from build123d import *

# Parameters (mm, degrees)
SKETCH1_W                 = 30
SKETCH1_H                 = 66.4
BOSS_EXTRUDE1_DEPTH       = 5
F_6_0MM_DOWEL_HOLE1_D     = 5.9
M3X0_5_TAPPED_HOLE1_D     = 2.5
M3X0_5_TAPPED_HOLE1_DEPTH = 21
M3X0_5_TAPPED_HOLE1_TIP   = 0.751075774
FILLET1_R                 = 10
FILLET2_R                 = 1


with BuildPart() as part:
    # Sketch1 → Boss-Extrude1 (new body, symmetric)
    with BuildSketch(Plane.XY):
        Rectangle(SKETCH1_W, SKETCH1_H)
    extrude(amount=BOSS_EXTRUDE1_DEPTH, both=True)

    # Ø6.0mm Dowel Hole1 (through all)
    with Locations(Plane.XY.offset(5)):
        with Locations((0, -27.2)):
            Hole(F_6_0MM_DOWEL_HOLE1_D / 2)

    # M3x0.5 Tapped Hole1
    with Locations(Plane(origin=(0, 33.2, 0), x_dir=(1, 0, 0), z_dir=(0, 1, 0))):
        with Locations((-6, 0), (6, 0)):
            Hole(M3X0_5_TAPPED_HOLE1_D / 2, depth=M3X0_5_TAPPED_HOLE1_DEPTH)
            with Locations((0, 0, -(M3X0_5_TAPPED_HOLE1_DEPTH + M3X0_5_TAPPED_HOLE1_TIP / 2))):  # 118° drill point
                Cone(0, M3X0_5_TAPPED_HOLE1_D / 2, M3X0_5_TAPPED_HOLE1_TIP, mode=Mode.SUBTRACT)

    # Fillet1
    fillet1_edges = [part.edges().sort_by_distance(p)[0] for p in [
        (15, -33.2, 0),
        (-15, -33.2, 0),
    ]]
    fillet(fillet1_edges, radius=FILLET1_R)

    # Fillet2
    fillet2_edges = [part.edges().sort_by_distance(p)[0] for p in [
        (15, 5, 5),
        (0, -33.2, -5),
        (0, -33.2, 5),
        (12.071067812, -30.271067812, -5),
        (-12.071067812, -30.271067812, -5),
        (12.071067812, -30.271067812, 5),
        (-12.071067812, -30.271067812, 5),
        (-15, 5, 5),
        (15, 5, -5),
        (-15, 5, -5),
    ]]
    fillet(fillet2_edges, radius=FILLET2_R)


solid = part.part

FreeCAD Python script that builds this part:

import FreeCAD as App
import Part
import Sketcher


def edges_at(feature, points):
    """Names of the edges that pass closest to the given points."""
    edges = feature.Shape.Edges
    near = lambda p: min(range(len(edges)), key=lambda i: edges[i].distToShape(Part.Vertex(*p))[0])
    return sorted({f"Edge{near(p) + 1}" for p in points})

doc = App.newDocument("Part")
body = doc.addObject("PartDesign::Body", "Body")

# Sketch on XY plane
sketch1 = body.newObject("Sketcher::SketchObject", "Sketch")
sketch1.AttachmentSupport = (doc.getObject("XY_Plane"), [""])
sketch1.MapMode = "FlatFace"
sketch1.addGeometry([
    Part.LineSegment(App.Vector(-15, 33, 0), App.Vector(-15, -33, 0)),
    Part.LineSegment(App.Vector(-15, -33, 0), App.Vector(15, -33, 0)),
    Part.LineSegment(App.Vector(15, -33, 0), App.Vector(15, 33, 0)),
    Part.LineSegment(App.Vector(15, 33, 0), App.Vector(-15, 33, 0)),
], False)
sketch1.addConstraint([
    Sketcher.Constraint("Coincident", 0, 2, 1, 1),
    Sketcher.Constraint("Coincident", 1, 2, 2, 1),
    Sketcher.Constraint("Coincident", 2, 2, 3, 1),
    Sketcher.Constraint("Coincident", 3, 2, 0, 1),
    Sketcher.Constraint("Vertical", 0),
    Sketcher.Constraint("Horizontal", 1),
    Sketcher.Constraint("Vertical", 2),
    Sketcher.Constraint("Horizontal", 3),
    Sketcher.Constraint("Symmetric", 0, 2, 2, 2, -1, 1),
    Sketcher.Constraint("DistanceX", 1, 1, 1, 2, 30.0),
    Sketcher.Constraint("DistanceY", 0, 2, 0, 1, 66.4),
])
pad1 = body.newObject("PartDesign::Pad", "Pad")
pad1.Profile = sketch1
pad1.Length = 10
pad1.Midplane = True

# Sketch on XY plane
sketch2 = body.newObject("Sketcher::SketchObject", "Sketch001")
sketch2.AttachmentSupport = (doc.getObject("XY_Plane"), [""])
sketch2.MapMode = "FlatFace"
sketch2.AttachmentOffset = App.Placement(App.Vector(0, 0, 5), App.Rotation())
sketch2.addGeometry(Part.Circle(App.Vector(0, -27.2, 0), App.Vector(0, 0, 1), 3), False)
sketch2.addConstraint([
    Sketcher.Constraint("PointOnObject", 0, 3, -2),
    Sketcher.Constraint("Diameter", 0, 5.9),
    Sketcher.Constraint("DistanceY", 0, 3, -1, 1, 27.2),
])
doc.recompute()
hole = body.newObject("PartDesign::Hole", "Hole")
hole.Profile = sketch2
hole.ThreadType = "None"
hole.Diameter = 5.9
hole.DepthType = "ThroughAll"

# Sketch on XZ plane
sketch3 = body.newObject("Sketcher::SketchObject", "Sketch002")
sketch3.AttachmentSupport = (doc.getObject("XZ_Plane"), [""])
sketch3.MapMode = "FlatFace"
sketch3.AttachmentOffset = App.Placement(App.Vector(0, 0, -33.2), App.Rotation())
sketch3.addGeometry([
    Part.Circle(App.Vector(-6, 0, 0), App.Vector(0, 0, 1), 1.2),
    Part.Circle(App.Vector(6, 0, 0), App.Vector(0, 0, 1), 1.2),
], False)
sketch3.addConstraint([
    Sketcher.Constraint("Equal", 0, 1),
    Sketcher.Constraint("Symmetric", 0, 3, 1, 3, -1, 1),
    Sketcher.Constraint("PointOnObject", 0, 3, -1),
    Sketcher.Constraint("Diameter", 0, 2.5),
    Sketcher.Constraint("DistanceX", 0, 3, -1, 1, 6.0),
])
doc.recompute()
hole2 = body.newObject("PartDesign::Hole", "Hole001")
hole2.Profile = sketch3
hole2.ThreadType = "None"
hole2.Diameter = 2.5
hole2.DepthType = "Dimension"
hole2.Depth = 21
hole2.DrillPoint = "Angled"
hole2.DrillPointAngle = 118
hole2.Reversed = True
doc.recompute()

fillet = body.newObject("PartDesign::Fillet", "Fillet")
fillet.Base = (hole2, edges_at(hole2, [(15, -33.2, 0), (-15, -33.2, 0)]))
fillet.Radius = 10
doc.recompute()

fillet2 = body.newObject("PartDesign::Fillet", "Fillet001")
fillet2.Base = (fillet, edges_at(fillet, [
    (15, 5, 5),
    (0, -33.2, -5),
    (0, -33.2, 5),
    (12.071, -30.271, -5),
    (-12.071, -30.271, -5),
    (12.071, -30.271, 5),
    (-12.071, -30.271, 5),
    (-15, 5, 5),
    (15, 5, -5),
    (-15, 5, -5),
]))
fillet2.Radius = 1

doc.recompute()
